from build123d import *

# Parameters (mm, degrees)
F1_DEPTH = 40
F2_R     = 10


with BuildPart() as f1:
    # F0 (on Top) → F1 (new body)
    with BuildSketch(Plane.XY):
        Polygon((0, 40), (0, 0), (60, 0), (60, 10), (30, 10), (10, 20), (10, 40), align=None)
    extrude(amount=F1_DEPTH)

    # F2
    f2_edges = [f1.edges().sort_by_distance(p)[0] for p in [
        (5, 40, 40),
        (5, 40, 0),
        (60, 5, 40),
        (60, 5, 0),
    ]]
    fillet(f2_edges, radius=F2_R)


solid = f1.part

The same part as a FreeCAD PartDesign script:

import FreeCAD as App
import Part
import Sketcher

V = App.Vector


def edges_at(feature, points):
    """Names of the edges that pass closest to the given points."""
    edges = feature.Shape.Edges
    near = lambda p: min(range(len(edges)), key=lambda i: edges[i].distToShape(Part.Vertex(*p))[0])
    return sorted({f"Edge{near(p) + 1}" for p in points})


def add_polygon(sketch, points):
    """Adds a closed chain of lines whose ends are joined by coincident constraints."""
    first, n = sketch.GeometryCount, len(points)
    for a, b in zip(points, points[1:] + points[:1]):
        sketch.addGeometry(Part.LineSegment(App.Vector(*a, 0), App.Vector(*b, 0)), False)
    for i in range(n):
        sketch.addConstraint(Sketcher.Constraint("Coincident", first + i, 2, first + (i + 1) % n, 1))

doc = App.newDocument("Part")
params = doc.addObject("Spreadsheet::Sheet", "Params")
for row, (alias, value) in enumerate([
    ("sketch1_width", "60 mm"),
    ("sketch1_width2", "30 mm"),
    ("sketch1_width3", "10 mm"),
    ("sketch1_height", "40 mm"),
    ("sketch1_height2", "20 mm"),
    ("pad1_length", "40 mm"),
    ("fillet_radius", "10 mm"),
], start=1):
    params.set(f"A{row}", alias)
    params.set(f"B{row}", "=" + value)
    params.setAlias(f"B{row}", alias)

body = doc.addObject("PartDesign::Body", "Body")

# Sketch on XY plane
sketch1 = body.newObject("Sketcher::SketchObject", "Sketch")
sketch1.AttachmentSupport = (doc.getObject("XY_Plane"), [""])
sketch1.MapMode = "FlatFace"
add_polygon(sketch1, [(0, 40), (0, 0), (60, 0), (60, 10), (30, 10), (10, 20), (10, 40)])  # lines 0-6
sketch1.addConstraint([
    Sketcher.Constraint("Vertical", 0),
    Sketcher.Constraint("Horizontal", 1),
    Sketcher.Constraint("Vertical", 2),
    Sketcher.Constraint("Horizontal", 3),
    Sketcher.Constraint("Vertical", 5),
    Sketcher.Constraint("Horizontal", 6),
    Sketcher.Constraint("Coincident", 0, 2, -1, 1),
    Sketcher.Constraint("Equal", 6, 2),
    Sketcher.Constraint("DistanceX", 1, 1, 1, 2, 60.0),
    Sketcher.Constraint("DistanceX", 3, 2, 3, 1, 30.0),
    Sketcher.Constraint("DistanceX", 6, 2, 6, 1, 10.0),
    Sketcher.Constraint("DistanceY", 0, 2, 0, 1, 40.0),
    Sketcher.Constraint("DistanceY", 5, 1, 5, 2, 20.0),
])
sketch1.setExpression("Constraints[15]", "Params.sketch1_width")
sketch1.setExpression("Constraints[16]", "Params.sketch1_width2")
sketch1.setExpression("Constraints[17]", "Params.sketch1_width3")
sketch1.setExpression("Constraints[18]", "Params.sketch1_height")
sketch1.setExpression("Constraints[19]", "Params.sketch1_height2")
pad1 = body.newObject("PartDesign::Pad", "Pad")
pad1.Profile = sketch1
pad1.setExpression("Length", "Params.pad1_length")
doc.recompute()

fillet = body.newObject("PartDesign::Fillet", "Fillet")
fillet.Base = (pad1, edges_at(pad1, [
    (5, 40, 40),
    (5, 40, 0),
    (60, 5, 40),
    (60, 5, 0),
]))
fillet.setExpression("Radius", "Params.fillet_radius")

doc.recompute()
